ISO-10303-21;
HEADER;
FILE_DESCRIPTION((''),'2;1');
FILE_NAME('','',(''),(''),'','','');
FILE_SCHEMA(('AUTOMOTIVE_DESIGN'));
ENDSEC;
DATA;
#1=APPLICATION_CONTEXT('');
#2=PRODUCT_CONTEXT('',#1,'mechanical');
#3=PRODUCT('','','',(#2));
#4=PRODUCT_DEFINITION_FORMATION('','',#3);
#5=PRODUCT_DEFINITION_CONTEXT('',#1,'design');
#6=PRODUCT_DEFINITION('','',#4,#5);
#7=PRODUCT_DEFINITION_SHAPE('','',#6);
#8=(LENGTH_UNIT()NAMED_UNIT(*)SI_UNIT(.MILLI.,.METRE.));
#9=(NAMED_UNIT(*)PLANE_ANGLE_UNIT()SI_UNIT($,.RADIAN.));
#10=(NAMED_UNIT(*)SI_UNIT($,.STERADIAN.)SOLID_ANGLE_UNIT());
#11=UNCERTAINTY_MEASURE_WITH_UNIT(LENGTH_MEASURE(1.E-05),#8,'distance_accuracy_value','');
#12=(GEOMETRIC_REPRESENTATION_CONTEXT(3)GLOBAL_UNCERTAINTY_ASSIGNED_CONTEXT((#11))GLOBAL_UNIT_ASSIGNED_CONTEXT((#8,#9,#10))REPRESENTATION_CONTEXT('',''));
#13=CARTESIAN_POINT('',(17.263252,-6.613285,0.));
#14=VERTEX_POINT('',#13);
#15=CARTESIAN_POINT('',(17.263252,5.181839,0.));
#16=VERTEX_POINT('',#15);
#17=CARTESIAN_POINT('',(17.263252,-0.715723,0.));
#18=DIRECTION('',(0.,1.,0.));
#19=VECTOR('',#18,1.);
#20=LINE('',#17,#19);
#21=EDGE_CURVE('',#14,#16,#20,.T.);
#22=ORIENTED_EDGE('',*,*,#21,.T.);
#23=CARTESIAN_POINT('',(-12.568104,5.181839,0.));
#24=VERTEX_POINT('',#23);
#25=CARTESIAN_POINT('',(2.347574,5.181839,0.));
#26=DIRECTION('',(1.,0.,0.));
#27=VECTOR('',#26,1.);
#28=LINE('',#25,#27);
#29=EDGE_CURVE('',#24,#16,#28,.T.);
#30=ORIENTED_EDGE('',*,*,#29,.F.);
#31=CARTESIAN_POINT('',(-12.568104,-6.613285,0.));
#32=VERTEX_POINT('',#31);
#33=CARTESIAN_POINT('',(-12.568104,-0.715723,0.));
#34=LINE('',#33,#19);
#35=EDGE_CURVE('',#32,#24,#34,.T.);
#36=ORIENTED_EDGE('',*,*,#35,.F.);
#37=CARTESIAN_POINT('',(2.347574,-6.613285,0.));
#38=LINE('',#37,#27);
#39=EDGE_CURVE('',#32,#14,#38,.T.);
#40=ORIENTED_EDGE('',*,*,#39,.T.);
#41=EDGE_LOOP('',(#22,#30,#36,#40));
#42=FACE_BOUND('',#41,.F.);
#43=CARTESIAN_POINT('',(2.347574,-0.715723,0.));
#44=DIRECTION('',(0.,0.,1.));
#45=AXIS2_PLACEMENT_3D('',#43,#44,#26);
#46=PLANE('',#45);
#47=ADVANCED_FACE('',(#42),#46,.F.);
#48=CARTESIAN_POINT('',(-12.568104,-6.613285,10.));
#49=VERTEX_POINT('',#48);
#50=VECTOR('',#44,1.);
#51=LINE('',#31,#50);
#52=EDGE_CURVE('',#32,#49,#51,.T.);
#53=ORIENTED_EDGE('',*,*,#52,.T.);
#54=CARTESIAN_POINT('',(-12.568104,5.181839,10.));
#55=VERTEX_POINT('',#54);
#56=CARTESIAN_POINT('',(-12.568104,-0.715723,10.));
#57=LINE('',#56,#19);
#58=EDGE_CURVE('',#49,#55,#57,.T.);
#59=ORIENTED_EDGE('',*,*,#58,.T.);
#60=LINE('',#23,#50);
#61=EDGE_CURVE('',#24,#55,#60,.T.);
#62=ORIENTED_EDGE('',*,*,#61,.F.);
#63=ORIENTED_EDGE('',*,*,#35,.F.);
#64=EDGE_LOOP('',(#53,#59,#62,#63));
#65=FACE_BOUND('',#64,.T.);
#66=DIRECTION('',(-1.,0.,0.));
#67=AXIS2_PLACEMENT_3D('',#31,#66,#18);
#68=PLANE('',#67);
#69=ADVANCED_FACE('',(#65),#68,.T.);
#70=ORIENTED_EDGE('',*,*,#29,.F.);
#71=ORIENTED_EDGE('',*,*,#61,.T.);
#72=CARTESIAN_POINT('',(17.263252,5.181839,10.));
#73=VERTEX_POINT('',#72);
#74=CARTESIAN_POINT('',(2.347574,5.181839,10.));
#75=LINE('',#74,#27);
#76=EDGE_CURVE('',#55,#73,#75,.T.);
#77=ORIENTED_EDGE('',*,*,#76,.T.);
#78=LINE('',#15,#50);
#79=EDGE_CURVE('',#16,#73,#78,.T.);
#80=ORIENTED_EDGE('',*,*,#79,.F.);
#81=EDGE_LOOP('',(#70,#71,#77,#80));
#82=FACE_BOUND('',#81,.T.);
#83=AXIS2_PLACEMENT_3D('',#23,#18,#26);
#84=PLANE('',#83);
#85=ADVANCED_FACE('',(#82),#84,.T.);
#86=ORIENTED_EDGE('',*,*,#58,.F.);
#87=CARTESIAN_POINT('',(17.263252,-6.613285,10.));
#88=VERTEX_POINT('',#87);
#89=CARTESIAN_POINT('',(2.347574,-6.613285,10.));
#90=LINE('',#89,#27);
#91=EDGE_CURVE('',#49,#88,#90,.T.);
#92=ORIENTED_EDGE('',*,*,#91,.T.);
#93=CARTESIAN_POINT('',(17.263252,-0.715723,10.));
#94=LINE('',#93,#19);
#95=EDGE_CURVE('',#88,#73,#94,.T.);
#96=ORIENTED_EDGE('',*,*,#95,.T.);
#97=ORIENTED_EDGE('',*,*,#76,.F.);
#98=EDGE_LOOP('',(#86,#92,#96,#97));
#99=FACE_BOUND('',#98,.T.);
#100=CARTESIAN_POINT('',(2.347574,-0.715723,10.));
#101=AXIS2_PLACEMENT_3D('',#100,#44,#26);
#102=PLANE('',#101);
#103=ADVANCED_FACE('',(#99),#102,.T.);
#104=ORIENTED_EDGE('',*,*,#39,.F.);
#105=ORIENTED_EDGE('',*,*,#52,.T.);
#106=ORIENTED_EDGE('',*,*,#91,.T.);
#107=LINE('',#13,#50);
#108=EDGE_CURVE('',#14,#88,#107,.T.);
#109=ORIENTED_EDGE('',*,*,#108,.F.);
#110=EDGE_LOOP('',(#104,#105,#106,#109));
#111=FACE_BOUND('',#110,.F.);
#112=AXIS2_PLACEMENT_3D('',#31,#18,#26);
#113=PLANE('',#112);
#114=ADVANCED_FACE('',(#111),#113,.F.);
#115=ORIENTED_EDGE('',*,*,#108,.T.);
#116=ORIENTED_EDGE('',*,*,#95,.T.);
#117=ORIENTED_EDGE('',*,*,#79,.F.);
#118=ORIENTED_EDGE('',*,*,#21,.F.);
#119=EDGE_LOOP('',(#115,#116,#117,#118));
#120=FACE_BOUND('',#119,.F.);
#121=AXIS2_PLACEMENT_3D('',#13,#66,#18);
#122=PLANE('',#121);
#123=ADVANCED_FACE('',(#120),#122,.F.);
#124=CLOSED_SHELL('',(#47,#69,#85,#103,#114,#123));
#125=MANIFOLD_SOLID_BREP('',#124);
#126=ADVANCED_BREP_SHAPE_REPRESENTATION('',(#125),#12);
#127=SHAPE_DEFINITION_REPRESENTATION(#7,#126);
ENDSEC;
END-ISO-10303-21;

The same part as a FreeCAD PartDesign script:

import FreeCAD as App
import Part
import Sketcher
from FreeCAD import Vector
Q = App.Units.Quantity

doc = App.newDocument("Part")
body = doc.addObject("PartDesign::Body", "Body")

# Sketch on XY plane
sketch1 = body.newObject("Sketcher::SketchObject", "Sketch")
sketch1.AttachmentSupport = (doc.getObject("XY_Plane"), [""])
sketch1.MapMode = "FlatFace"
sketch1.addGeometry([
    Part.LineSegment(Vector(-13, 5, 0), Vector(-13, -7, 0)),
    Part.LineSegment(Vector(-13, -7, 0), Vector(17, -7, 0)),
    Part.LineSegment(Vector(17, -7, 0), Vector(17, 5, 0)),
    Part.LineSegment(Vector(17, 5, 0), Vector(-13, 5, 0)),
], False)
sketch1.addConstraint([
    Sketcher.Constraint("Coincident", 0, 2, 1, 1),
    Sketcher.Constraint("Coincident", 1, 2, 2, 1),
    Sketcher.Constraint("Coincident", 2, 2, 3, 1),
    Sketcher.Constraint("Coincident", 3, 2, 0, 1),
    Sketcher.Constraint("Vertical", 0),
    Sketcher.Constraint("Horizontal", 1),
    Sketcher.Constraint("Vertical", 2),
    Sketcher.Constraint("Horizontal", 3),
    Sketcher.Constraint("DistanceX", 1, 1, 1, 2, Q("29.831356 mm")),
    Sketcher.Constraint("DistanceY", 0, 2, 0, 1, Q("11.795124 mm")),
    Sketcher.Constraint("DistanceY", -1, 1, 2, 2, Q("5.181839 mm")),
    Sketcher.Constraint("DistanceX", 0, 2, -1, 1, Q("12.568104 mm")),
])
pad1 = body.newObject("PartDesign::Pad", "Pad")
pad1.Profile = sketch1
pad1.Length = 10

doc.recompute()
